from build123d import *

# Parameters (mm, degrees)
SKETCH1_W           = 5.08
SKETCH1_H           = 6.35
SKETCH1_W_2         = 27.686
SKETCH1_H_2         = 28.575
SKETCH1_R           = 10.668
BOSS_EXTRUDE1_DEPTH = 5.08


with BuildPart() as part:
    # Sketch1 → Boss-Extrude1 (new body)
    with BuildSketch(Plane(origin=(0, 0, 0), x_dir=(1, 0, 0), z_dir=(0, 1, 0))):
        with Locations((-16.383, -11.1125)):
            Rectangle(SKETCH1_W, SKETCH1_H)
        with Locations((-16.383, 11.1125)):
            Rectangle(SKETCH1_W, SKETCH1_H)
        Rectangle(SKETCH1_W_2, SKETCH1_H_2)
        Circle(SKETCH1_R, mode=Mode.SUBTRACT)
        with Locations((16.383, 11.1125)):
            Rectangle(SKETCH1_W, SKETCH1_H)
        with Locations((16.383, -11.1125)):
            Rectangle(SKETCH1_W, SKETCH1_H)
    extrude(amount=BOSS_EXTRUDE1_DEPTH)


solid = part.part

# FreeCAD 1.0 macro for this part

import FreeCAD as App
import Part
import Sketcher
Q = App.Units.Quantity


def add_polygon(sketch, points):
    """Adds a closed chain of lines whose ends are joined by coincident constraints."""
    first, n = sketch.GeometryCount, len(points)
    for a, b in zip(points, points[1:] + points[:1]):
        sketch.addGeometry(Part.LineSegment(App.Vector(*a, 0), App.Vector(*b, 0)), False)
    for i in range(n):
        sketch.addConstraint(Sketcher.Constraint("Coincident", first + i, 2, first + (i + 1) % n, 1))

doc = App.newDocument("Part")
params = doc.addObject("Spreadsheet::Sheet", "Params")
for row, (alias, value) in enumerate([
    ("sketch1_diameter", "0.84 in"),
    ("sketch1_width", "0.2 in"),
    ("sketch1_width2", "1.49 in"),
    ("sketch1_height", "0.25 in"),
    ("sketch1_height2", "0.625 in"),
    ("pad1_length", "0.2 in"),
], start=1):
    params.set(f"A{row}", alias)
    params.set(f"B{row}", "=" + value)
    params.setAlias(f"B{row}", alias)

body = doc.addObject("PartDesign::Body", "Body")

# Sketch on XZ plane
sketch1 = body.newObject("Sketcher::SketchObject", "Sketch")
sketch1.AttachmentSupport = (doc.getObject("XZ_Plane"), [""])
sketch1.MapMode = "FlatFace"
add_polygon(sketch1, [(-19, 8), (-19, 14), (19, 14), (19, 8), (14, 8), (14, -8), (19, -8), (19, -14), (-19, -14), (-19, -8), (-14, -8), (-14, 8)])  # lines 0-11
sketch1.addGeometry(Part.Circle(App.Vector(0, 0, 0), App.Vector(0, 0, 1), 11), False)  # 12
sketch1.addConstraint(Sketcher.Constraint("Vertical", 0))
sketch1.addConstraint(Sketcher.Constraint("Horizontal", 1))
sketch1.addConstraint(Sketcher.Constraint("Vertical", 2))
sketch1.addConstraint(Sketcher.Constraint("Horizontal", 3))
sketch1.addConstraint(Sketcher.Constraint("Vertical", 4))
sketch1.addConstraint(Sketcher.Constraint("Horizontal", 5))
sketch1.addConstraint(Sketcher.Constraint("Vertical", 6))
sketch1.addConstraint(Sketcher.Constraint("Horizontal", 7))
sketch1.addConstraint(Sketcher.Constraint("Vertical", 8))
sketch1.addConstraint(Sketcher.Constraint("Horizontal", 9))
sketch1.addConstraint(Sketcher.Constraint("Vertical", 10))
sketch1.addConstraint(Sketcher.Constraint("Horizontal", 11))
sketch1.addConstraint(Sketcher.Constraint("Coincident", 12, 3, -1, 1))
sketch1.addConstraint(Sketcher.Constraint("Symmetric", 0, 2, 6, 2, -1, 1))
sketch1.addConstraint(Sketcher.Constraint("Symmetric", 2, 2, 8, 2, -1, 1))
sketch1.addConstraint(Sketcher.Constraint("Symmetric", 4, 2, 10, 2, -1, 1))
sketch1.addConstraint(Sketcher.Constraint("Symmetric", 5, 2, 8, 2, -2))
sketch1.addConstraint(Sketcher.Constraint("Diameter", 12, Q("0.84 in")))
sketch1.addConstraint(Sketcher.Constraint("DistanceX", 3, 2, 3, 1, Q("0.2 in")))
sketch1.addConstraint(Sketcher.Constraint("DistanceX", 1, 1, 1, 2, Q("1.49 in")))
sketch1.addConstraint(Sketcher.Constraint("DistanceY", 0, 1, 0, 2, Q("0.25 in")))
sketch1.addConstraint(Sketcher.Constraint("DistanceY", 4, 2, 4, 1, Q("0.625 in")))
sketch1.setExpression("Constraints[29]", "Params.sketch1_diameter")
sketch1.setExpression("Constraints[30]", "Params.sketch1_width")
sketch1.setExpression("Constraints[31]", "Params.sketch1_width2")
sketch1.setExpression("Constraints[32]", "Params.sketch1_height")
sketch1.setExpression("Constraints[33]", "Params.sketch1_height2")
pad1 = body.newObject("PartDesign::Pad", "Pad")
pad1.Profile = sketch1
pad1.setExpression("Length", "Params.pad1_length")
pad1.Reversed = True

doc.recompute()
